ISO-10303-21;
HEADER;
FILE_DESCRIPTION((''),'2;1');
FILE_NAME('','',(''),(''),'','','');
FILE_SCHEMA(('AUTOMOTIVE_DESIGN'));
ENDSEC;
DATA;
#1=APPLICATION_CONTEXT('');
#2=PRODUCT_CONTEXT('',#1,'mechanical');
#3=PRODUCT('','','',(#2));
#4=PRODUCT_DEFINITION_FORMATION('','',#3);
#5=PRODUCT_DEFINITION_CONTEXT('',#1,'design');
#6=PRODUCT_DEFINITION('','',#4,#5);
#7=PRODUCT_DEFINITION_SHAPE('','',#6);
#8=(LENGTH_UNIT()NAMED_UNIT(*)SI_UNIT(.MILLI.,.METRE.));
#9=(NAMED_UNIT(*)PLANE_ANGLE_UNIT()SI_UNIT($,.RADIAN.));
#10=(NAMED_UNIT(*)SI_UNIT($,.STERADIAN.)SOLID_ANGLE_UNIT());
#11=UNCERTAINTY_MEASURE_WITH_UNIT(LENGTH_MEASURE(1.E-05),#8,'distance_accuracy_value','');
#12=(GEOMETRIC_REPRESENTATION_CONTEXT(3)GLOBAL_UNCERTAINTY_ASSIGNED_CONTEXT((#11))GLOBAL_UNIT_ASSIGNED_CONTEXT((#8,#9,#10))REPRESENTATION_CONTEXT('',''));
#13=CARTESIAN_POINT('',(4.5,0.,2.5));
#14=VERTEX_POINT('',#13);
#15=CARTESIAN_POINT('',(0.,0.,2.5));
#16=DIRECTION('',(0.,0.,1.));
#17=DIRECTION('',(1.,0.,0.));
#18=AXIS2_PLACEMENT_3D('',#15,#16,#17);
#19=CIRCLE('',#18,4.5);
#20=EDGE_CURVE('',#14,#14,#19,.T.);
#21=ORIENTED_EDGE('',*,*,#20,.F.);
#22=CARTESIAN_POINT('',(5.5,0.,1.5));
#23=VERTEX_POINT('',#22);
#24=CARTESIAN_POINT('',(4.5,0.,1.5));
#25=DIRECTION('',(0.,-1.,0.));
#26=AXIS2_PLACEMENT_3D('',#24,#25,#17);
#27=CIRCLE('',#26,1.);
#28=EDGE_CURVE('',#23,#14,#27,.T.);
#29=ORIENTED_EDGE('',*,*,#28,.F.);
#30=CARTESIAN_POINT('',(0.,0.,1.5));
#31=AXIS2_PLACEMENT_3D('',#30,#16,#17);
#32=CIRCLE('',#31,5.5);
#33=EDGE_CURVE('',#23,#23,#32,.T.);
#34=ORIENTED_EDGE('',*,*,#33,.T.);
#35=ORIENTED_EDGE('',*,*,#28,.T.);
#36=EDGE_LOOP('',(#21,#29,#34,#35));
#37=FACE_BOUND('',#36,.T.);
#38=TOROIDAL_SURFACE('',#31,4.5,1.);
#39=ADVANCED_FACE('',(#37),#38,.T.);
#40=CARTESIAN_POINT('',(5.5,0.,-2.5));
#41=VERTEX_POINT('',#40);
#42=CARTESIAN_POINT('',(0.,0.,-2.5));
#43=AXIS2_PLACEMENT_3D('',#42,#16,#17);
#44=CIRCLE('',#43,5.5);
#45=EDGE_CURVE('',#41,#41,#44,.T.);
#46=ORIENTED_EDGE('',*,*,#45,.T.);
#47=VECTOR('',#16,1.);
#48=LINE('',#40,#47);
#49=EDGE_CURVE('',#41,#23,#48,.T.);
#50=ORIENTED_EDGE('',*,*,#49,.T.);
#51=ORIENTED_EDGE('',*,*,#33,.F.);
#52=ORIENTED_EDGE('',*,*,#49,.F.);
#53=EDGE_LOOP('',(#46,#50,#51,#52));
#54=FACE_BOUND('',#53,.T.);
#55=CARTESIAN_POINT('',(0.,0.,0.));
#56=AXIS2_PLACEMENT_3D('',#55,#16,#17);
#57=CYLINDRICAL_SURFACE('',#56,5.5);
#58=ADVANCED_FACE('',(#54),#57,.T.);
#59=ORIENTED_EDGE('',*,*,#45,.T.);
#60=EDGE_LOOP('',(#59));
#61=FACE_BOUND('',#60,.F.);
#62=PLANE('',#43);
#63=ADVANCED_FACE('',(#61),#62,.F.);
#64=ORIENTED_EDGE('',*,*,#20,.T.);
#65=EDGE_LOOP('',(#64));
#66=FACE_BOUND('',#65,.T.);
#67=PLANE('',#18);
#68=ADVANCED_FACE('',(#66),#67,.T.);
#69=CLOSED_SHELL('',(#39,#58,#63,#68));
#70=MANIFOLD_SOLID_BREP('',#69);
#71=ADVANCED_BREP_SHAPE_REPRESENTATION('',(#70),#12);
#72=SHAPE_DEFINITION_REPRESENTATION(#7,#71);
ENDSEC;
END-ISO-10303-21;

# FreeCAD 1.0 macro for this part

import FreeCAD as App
import Part
import Sketcher
from FreeCAD import Vector
Q = App.Units.Quantity


def edges_at(feature, points):
    """Names of the edges that pass closest to the given points."""
    edges = feature.Shape.Edges
    near = lambda p: min(range(len(edges)), key=lambda i: edges[i].distToShape(Part.Vertex(*p))[0])
    return sorted({f"Edge{near(p) + 1}" for p in points})

doc = App.newDocument("Part")
body = doc.addObject("PartDesign::Body", "Body")

# Sketch on XY plane
sketch1 = doc.addObject("Sketcher::SketchObject", "Sketch")
body.addObject(sketch1)
sketch1.AttachmentSupport = (doc.XY_Plane, [""])
sketch1.MapMode = "FlatFace"
sketch1.addGeometry(Part.Circle(Vector(0, 0, 0), Vector(0, 0, 1), 6), False)
sketch1.addConstraint([
    Sketcher.Constraint("Coincident", 0, 3, -1, 1),
    Sketcher.Constraint("Diameter", 0, Q("11 mm")),
])
pad1 = doc.addObject("PartDesign::Pad", "Pad")
body.addObject(pad1)
pad1.Profile = sketch1
pad1.Length = 5
pad1.Midplane = True
doc.recompute()

fillet = doc.addObject("PartDesign::Fillet", "Fillet")
body.addObject(fillet)
fillet.Base = (pad1, edges_at(pad1, [(-5.5, 0, 2.5)]))
fillet.Radius = 1

doc.recompute()
